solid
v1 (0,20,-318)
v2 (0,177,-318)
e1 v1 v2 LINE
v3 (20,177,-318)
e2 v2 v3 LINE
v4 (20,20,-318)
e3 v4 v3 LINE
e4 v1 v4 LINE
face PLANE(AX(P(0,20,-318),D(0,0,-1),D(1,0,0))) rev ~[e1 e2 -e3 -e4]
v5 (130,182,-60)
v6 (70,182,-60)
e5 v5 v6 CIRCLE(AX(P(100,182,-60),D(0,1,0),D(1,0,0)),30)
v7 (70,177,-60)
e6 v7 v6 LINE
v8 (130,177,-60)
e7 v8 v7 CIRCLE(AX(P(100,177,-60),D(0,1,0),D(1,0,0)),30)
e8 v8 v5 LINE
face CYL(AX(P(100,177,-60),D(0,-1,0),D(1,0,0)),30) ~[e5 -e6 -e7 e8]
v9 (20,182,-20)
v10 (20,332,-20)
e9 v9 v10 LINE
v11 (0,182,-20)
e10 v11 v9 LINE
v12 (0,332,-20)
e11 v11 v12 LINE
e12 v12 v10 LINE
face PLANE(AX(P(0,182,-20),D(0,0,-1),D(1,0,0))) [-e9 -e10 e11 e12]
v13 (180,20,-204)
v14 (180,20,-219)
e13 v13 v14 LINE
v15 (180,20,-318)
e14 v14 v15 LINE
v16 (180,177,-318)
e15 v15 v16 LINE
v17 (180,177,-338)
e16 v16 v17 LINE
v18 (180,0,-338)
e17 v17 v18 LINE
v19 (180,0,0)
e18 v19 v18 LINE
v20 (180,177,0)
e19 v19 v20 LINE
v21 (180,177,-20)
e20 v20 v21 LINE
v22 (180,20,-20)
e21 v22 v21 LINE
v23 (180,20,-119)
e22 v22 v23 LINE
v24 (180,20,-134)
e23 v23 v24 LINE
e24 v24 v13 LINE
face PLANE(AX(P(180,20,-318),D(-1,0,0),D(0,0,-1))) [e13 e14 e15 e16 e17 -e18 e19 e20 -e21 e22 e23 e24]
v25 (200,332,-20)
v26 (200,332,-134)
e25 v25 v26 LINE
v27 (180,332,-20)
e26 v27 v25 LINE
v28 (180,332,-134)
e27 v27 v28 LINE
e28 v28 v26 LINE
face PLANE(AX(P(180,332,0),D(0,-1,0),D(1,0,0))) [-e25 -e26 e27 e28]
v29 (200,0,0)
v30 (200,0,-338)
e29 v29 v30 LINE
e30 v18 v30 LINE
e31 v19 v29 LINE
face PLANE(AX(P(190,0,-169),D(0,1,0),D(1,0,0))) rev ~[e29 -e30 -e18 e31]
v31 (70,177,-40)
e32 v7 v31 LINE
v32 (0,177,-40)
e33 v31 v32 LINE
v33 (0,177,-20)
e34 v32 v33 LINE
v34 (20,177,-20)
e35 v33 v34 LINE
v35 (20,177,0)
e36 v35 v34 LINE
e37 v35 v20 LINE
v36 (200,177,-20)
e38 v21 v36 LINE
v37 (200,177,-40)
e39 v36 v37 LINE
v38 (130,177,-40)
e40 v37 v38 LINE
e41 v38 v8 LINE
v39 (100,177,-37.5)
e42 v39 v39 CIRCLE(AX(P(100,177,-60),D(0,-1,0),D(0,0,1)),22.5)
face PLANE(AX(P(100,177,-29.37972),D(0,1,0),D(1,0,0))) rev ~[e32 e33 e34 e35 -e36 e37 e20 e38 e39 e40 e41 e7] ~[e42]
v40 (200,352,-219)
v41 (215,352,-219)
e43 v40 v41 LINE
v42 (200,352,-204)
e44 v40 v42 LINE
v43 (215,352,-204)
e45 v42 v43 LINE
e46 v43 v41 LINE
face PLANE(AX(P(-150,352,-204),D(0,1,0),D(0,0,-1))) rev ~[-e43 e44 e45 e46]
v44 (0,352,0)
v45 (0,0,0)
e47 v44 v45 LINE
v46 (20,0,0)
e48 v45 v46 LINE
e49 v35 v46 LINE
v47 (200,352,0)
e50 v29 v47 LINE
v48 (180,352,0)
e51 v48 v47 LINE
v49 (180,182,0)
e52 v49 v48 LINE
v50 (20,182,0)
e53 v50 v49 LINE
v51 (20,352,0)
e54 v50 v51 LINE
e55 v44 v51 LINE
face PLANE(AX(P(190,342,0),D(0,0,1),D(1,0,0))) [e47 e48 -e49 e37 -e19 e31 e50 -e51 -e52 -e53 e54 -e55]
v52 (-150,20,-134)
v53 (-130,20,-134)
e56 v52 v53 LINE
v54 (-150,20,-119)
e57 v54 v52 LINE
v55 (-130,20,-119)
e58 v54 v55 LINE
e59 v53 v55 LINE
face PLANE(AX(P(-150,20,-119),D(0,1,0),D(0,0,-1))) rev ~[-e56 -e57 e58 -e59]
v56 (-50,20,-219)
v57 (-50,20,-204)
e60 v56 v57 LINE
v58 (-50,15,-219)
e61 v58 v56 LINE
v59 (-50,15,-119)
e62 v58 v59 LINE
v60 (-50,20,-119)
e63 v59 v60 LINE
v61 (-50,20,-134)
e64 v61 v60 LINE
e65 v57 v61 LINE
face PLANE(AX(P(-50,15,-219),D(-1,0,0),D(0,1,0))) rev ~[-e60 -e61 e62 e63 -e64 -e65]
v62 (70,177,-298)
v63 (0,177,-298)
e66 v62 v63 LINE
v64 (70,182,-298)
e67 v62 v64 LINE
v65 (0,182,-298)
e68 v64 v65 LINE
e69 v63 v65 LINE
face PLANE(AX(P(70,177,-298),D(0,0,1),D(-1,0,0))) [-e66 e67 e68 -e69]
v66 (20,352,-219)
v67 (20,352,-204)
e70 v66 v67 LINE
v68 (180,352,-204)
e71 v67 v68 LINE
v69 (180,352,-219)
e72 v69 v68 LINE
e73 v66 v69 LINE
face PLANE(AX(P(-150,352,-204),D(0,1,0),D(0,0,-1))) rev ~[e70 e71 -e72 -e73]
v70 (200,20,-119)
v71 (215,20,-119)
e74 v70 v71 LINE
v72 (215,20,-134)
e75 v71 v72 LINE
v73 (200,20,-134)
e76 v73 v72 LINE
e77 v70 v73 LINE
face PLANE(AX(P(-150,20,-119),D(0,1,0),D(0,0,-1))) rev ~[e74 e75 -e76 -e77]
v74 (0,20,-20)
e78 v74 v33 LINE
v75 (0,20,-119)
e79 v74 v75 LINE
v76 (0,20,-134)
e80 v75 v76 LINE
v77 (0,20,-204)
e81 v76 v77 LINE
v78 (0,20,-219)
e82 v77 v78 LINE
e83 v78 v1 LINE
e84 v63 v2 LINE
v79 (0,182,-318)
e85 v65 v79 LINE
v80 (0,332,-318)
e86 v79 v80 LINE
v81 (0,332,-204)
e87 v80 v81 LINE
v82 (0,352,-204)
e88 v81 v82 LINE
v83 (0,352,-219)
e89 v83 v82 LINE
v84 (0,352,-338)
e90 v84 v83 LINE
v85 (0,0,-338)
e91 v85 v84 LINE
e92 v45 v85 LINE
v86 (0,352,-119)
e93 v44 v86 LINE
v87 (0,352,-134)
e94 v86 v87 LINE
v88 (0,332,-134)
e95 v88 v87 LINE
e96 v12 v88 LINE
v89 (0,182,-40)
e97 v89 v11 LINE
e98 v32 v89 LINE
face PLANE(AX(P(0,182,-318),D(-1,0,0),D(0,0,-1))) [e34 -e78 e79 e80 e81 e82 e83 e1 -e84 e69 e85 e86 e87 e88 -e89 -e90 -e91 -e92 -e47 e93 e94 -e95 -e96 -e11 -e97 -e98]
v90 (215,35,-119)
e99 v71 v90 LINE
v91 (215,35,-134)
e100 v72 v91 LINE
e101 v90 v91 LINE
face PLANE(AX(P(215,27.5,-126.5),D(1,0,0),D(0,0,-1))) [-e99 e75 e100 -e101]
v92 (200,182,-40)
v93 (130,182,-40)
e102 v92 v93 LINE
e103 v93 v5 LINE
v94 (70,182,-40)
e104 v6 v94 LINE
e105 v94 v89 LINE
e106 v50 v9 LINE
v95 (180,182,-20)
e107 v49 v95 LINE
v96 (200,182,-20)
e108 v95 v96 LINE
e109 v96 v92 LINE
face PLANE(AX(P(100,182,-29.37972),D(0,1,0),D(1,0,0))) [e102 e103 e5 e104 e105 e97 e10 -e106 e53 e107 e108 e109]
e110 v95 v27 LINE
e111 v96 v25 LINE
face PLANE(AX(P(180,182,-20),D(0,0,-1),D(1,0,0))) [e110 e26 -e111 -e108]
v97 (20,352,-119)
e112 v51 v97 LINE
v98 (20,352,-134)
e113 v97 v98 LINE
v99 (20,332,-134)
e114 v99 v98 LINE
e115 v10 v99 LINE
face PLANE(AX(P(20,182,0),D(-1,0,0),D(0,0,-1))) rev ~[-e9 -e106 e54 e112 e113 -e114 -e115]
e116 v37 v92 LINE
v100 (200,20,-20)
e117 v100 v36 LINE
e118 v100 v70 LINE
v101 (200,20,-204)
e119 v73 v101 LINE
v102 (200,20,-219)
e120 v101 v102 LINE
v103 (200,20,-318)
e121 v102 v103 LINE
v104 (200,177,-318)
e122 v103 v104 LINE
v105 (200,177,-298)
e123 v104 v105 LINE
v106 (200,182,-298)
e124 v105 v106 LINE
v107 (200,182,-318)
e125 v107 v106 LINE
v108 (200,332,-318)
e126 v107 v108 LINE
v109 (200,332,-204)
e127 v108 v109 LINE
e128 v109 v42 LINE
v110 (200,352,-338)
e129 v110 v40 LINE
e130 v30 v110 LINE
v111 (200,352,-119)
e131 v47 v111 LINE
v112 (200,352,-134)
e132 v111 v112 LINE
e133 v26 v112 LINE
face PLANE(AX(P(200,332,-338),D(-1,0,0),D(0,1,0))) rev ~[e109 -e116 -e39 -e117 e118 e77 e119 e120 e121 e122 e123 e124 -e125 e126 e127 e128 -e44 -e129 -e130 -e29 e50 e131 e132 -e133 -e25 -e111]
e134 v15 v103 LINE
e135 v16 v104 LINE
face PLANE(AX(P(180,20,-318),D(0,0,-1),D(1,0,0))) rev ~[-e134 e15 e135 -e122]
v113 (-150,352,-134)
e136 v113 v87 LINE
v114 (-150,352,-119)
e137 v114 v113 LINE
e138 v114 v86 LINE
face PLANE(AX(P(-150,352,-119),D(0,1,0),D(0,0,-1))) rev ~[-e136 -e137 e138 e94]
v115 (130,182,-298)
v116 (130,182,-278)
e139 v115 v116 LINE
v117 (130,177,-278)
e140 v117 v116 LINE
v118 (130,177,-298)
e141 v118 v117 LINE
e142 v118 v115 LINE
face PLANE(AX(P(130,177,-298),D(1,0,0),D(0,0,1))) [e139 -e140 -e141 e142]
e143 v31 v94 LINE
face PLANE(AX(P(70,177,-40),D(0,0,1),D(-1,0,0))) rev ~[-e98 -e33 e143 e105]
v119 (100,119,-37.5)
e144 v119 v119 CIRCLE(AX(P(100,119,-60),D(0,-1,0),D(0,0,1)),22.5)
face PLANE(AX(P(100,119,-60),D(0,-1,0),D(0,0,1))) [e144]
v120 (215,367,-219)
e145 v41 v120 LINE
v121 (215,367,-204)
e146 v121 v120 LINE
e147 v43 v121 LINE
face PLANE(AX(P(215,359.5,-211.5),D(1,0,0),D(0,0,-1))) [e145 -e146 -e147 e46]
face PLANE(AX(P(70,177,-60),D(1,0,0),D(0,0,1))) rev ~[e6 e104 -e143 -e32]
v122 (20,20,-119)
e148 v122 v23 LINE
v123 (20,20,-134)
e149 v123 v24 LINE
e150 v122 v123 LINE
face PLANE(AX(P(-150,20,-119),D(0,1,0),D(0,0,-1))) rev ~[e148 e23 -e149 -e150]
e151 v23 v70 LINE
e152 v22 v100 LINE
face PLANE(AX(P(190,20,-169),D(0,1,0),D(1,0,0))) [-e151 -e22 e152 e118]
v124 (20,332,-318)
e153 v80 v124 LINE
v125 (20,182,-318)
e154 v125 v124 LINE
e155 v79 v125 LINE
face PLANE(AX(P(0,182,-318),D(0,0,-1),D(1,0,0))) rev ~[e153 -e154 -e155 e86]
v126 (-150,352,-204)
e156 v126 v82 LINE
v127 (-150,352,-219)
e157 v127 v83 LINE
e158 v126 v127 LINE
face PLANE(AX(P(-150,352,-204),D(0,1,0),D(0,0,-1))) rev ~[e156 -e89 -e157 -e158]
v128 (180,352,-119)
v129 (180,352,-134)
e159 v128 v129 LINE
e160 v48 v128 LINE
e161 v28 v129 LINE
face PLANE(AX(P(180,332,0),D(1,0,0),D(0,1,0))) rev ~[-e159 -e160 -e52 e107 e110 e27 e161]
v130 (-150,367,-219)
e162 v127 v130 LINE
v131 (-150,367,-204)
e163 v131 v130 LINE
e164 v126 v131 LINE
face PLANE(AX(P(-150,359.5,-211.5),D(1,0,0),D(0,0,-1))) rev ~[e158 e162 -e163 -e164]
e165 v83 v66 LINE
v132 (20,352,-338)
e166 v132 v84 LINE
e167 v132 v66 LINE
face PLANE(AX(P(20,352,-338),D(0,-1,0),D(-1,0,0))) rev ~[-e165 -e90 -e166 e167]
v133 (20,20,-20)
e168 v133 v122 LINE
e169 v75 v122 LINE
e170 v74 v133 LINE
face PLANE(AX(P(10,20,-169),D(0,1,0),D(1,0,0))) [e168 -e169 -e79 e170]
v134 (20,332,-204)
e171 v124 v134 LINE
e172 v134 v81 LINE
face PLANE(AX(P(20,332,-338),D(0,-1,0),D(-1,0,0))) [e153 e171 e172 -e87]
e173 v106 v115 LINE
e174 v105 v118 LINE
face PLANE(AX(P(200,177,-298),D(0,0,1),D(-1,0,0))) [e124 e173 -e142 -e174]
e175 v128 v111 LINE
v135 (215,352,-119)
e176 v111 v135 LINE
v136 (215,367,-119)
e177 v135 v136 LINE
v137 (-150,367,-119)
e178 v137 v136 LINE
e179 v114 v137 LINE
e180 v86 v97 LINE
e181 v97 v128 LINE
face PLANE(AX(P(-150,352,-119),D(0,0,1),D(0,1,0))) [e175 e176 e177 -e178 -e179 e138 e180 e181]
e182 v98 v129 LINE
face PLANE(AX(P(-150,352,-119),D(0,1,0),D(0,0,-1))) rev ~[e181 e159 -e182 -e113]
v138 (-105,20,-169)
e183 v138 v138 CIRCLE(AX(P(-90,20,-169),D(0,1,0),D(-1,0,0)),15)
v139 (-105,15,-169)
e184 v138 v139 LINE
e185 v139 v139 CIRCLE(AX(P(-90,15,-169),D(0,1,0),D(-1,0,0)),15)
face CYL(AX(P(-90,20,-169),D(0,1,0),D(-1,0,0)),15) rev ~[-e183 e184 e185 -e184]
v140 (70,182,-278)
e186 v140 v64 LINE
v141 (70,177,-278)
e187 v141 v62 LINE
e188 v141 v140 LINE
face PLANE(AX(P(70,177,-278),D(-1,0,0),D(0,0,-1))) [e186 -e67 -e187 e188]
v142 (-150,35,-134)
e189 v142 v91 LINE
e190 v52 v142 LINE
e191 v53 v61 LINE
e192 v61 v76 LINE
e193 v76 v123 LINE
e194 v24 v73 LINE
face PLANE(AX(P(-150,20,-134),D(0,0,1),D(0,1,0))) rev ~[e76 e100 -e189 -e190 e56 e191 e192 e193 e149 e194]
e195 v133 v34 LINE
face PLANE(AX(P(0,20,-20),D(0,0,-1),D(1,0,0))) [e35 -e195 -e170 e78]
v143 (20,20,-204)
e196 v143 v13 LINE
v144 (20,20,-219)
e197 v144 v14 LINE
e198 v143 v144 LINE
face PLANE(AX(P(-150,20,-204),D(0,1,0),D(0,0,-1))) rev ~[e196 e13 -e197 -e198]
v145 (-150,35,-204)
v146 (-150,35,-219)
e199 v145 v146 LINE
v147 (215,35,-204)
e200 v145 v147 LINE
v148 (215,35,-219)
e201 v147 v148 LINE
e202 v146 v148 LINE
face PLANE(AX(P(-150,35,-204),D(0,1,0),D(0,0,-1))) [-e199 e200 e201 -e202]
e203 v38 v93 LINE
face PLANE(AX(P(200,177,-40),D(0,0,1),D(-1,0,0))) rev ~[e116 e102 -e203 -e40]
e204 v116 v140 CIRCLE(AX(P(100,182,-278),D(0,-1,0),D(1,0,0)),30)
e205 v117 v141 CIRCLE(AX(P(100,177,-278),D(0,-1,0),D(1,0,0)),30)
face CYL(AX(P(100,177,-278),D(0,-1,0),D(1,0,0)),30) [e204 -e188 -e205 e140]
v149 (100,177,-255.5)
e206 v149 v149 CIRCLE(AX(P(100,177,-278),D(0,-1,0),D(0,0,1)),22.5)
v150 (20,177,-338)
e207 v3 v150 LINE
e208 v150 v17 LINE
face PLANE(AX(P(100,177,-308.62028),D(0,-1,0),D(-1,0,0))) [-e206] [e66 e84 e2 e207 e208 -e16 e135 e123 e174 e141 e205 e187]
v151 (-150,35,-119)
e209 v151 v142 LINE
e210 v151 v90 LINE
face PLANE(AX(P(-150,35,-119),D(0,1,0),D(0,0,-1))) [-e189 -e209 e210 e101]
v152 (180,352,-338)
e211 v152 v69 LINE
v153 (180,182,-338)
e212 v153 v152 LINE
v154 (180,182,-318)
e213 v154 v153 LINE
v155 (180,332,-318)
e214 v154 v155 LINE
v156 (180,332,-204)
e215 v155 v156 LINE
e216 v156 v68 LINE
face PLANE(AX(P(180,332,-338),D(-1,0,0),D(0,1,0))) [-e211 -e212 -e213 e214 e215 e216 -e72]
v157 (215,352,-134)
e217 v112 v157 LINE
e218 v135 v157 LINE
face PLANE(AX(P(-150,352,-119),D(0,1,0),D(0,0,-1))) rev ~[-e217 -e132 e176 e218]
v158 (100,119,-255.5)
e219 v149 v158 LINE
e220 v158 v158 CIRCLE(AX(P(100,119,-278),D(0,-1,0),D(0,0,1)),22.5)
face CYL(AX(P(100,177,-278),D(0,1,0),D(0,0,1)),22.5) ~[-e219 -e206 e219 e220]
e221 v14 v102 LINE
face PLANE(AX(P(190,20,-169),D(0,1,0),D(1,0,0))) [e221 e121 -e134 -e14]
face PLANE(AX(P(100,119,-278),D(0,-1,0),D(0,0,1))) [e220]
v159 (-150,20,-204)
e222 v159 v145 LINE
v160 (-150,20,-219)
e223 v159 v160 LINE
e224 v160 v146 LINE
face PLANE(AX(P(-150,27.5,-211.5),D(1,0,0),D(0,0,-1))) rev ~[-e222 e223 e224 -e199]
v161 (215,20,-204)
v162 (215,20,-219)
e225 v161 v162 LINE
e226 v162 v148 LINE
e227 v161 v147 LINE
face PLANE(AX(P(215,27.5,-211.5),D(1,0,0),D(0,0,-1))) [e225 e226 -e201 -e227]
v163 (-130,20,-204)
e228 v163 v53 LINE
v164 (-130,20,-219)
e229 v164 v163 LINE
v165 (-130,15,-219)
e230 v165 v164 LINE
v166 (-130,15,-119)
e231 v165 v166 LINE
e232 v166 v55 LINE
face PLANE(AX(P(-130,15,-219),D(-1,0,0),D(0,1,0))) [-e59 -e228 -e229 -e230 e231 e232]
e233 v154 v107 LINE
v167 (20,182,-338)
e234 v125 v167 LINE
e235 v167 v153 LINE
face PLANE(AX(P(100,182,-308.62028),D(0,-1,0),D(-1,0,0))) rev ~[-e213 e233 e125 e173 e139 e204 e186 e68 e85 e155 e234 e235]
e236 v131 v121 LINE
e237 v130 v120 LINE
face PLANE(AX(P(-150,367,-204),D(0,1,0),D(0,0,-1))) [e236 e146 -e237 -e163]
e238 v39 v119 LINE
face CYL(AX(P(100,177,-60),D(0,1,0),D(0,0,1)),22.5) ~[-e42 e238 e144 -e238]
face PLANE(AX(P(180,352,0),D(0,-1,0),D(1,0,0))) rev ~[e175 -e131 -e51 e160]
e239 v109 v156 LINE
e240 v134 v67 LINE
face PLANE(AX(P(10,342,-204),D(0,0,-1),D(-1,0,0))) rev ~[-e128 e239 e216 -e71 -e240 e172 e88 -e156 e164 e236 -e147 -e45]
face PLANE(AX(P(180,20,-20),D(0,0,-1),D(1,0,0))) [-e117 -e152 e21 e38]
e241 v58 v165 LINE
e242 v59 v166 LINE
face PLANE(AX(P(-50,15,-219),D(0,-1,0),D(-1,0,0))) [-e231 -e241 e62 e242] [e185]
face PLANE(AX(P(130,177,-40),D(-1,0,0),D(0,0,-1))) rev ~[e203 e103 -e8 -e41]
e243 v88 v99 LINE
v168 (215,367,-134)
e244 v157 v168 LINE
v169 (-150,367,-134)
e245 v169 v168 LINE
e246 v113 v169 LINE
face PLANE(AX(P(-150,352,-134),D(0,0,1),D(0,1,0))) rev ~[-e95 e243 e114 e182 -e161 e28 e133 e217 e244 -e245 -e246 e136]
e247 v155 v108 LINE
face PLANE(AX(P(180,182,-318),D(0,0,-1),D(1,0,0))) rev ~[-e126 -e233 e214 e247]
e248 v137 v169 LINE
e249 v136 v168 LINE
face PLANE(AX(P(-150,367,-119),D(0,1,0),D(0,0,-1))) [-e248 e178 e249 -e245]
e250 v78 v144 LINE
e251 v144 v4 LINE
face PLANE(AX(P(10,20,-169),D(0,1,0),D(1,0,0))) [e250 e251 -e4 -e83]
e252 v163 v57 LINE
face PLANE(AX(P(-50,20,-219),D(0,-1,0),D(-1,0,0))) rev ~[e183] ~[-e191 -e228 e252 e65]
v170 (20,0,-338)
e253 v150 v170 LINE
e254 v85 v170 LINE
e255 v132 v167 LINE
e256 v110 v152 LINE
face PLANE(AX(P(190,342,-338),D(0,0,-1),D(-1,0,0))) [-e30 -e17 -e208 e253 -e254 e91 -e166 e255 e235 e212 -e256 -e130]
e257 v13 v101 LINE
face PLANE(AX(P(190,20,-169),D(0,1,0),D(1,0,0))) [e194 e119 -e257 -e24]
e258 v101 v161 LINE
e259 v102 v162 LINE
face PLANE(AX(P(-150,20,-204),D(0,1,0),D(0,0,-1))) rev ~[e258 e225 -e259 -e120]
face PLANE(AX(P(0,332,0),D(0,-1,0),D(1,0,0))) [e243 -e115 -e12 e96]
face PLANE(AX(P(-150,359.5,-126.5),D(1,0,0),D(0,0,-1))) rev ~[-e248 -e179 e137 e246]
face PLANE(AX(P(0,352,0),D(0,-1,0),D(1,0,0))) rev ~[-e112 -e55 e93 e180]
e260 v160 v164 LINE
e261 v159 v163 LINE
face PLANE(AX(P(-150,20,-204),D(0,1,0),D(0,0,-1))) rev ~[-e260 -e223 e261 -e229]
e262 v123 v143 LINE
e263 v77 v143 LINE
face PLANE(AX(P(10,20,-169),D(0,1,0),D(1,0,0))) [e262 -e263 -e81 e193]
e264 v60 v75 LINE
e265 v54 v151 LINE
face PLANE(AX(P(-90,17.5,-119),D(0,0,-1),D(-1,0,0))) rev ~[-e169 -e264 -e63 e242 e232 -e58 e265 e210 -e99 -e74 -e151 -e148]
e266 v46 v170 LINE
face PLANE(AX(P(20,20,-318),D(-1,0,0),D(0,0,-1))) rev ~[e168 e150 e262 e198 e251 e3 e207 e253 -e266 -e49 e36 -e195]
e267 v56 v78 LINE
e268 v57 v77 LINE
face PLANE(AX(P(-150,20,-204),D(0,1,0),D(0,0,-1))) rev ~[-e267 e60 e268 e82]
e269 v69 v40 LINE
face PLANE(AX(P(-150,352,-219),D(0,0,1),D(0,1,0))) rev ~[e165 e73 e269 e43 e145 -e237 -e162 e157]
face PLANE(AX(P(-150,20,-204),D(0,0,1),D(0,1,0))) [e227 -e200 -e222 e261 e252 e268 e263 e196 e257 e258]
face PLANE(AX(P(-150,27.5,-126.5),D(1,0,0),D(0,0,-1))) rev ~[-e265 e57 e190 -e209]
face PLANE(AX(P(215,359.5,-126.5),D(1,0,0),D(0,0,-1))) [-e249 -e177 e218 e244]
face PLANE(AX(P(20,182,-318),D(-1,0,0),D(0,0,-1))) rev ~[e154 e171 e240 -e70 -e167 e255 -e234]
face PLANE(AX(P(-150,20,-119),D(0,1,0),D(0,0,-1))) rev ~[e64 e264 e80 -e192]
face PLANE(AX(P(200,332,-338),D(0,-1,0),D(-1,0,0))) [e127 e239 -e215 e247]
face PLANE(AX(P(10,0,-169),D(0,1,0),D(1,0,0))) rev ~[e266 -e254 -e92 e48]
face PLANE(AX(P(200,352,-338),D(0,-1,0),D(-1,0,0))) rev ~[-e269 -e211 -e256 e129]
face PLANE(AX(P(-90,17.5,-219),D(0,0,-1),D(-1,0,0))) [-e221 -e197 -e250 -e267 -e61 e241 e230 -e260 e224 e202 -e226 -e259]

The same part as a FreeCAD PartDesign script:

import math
import FreeCAD as App
import Part
import Sketcher

V = App.Vector

doc = App.newDocument("Part")
params = doc.addObject("Spreadsheet::Sheet", "Params")
for row, (alias, value) in enumerate([
    ("sketch1_width", "20 mm"),
    ("sketch1_height", "338 mm"),
    ("pad1_length", "20 mm"),
    ("sketch2_width", "20 mm"),
    ("sketch2_height", "338 mm"),
    ("pad2_length", "20 mm"),
    ("sketch3_width", "20 mm"),
    ("pad3_length", "157 mm"),
    ("sketch4_radius", "30 mm"),
    ("sketch4_width", "200 mm"),
    ("sketch4_height", "40 mm"),
    ("sketch4_height2", "20 mm"),
    ("pad4_length", "5 mm"),
    ("sketch5_diameter", "45 mm"),
    ("pad5_length", "58 mm"),
    ("sketch6_width", "15 mm"),
    ("pad6_length", "15 mm"),
    ("pad6_length2", "350 mm"),
    ("sketch7_width", "20 mm"),
    ("pad7_length", "150 mm"),
    ("sketch8_width", "20 mm"),
    ("pad8_length", "134 mm"),
    ("sketch9_width", "20 mm"),
    ("pad9_length", "134 mm"),
    ("sketch10_width", "15 mm"),
    ("pad10_length", "15 mm"),
    ("pad10_length2", "350 mm"),
    ("sketch11_width", "80 mm"),
    ("sketch11_height", "5 mm"),
    ("pad11_length", "100 mm"),
    ("sketch12_diameter", "30 mm"),
    ("pocket1_length", "5 mm"),
], start=1):
    params.set(f"A{row}", alias)
    params.set(f"B{row}", "=" + value)
    params.setAlias(f"B{row}", alias)

body = doc.addObject("PartDesign::Body", "Body")

# Sketch on XZ plane
sketch1 = body.newObject("Sketcher::SketchObject", "Sketch")
sketch1.AttachmentSupport = (doc.getObject("XZ_Plane"), [""])
sketch1.MapMode = "FlatFace"
sketch1.addGeometry([
    Part.LineSegment(V(0, -338, 0), V(0, 0, 0)),
    Part.LineSegment(V(0, 0, 0), V(20, 0, 0)),
    Part.LineSegment(V(20, 0, 0), V(20, -338, 0)),
    Part.LineSegment(V(20, -338, 0), V(0, -338, 0)),
], False)
sketch1.addConstraint([
    Sketcher.Constraint("Coincident", 0, 2, 1, 1),
    Sketcher.Constraint("Coincident", 1, 2, 2, 1),
    Sketcher.Constraint("Coincident", 2, 2, 3, 1),
    Sketcher.Constraint("Coincident", 3, 2, 0, 1),
    Sketcher.Constraint("Vertical", 0),
    Sketcher.Constraint("Horizontal", 1),
    Sketcher.Constraint("Vertical", 2),
    Sketcher.Constraint("Horizontal", 3),
    Sketcher.Constraint("Coincident", 0, 2, -1, 1),
    Sketcher.Constraint("DistanceX", 1, 1, 1, 2, 20.0),
    Sketcher.Constraint("DistanceY", 0, 1, 0, 2, 338.0),
])
sketch1.setExpression("Constraints[9]", "Params.sketch1_width")
sketch1.setExpression("Constraints[10]", "Params.sketch1_height")
pad1 = body.newObject("PartDesign::Pad", "Pad")
pad1.Profile = sketch1
pad1.setExpression("Length", "Params.pad1_length")
pad1.Reversed = True
body2 = doc.addObject("PartDesign::Body", "Body001")

# Sketch on XZ plane
sketch2 = body2.newObject("Sketcher::SketchObject", "Sketch001")
sketch2.AttachmentSupport = (doc.getObject("XZ_Plane001"), [""])
sketch2.MapMode = "FlatFace"
sketch2.addGeometry([
    Part.LineSegment(V(180, -338, 0), V(180, 0, 0)),
    Part.LineSegment(V(180, 0, 0), V(200, 0, 0)),
    Part.LineSegment(V(200, 0, 0), V(200, -338, 0)),
    Part.LineSegment(V(200, -338, 0), V(180, -338, 0)),
], False)
sketch2.addConstraint([
    Sketcher.Constraint("Coincident", 0, 2, 1, 1),
    Sketcher.Constraint("Coincident", 1, 2, 2, 1),
    Sketcher.Constraint("Coincident", 2, 2, 3, 1),
    Sketcher.Constraint("Coincident", 3, 2, 0, 1),
    Sketcher.Constraint("Vertical", 0),
    Sketcher.Constraint("Horizontal", 1),
    Sketcher.Constraint("Vertical", 2),
    Sketcher.Constraint("Horizontal", 3),
    Sketcher.Constraint("PointOnObject", 0, 2, -1),
    Sketcher.Constraint("DistanceX", 1, 1, 1, 2, 20.0),
    Sketcher.Constraint("DistanceY", 0, 1, 0, 2, 338.0),
    Sketcher.Constraint("DistanceX", -1, 1, 0, 2, 180.0),
])
sketch2.setExpression("Constraints[9]", "Params.sketch2_width")
sketch2.setExpression("Constraints[10]", "Params.sketch2_height")
pad2 = body2.newObject("PartDesign::Pad", "Pad001")
pad2.Profile = sketch2
pad2.setExpression("Length", "Params.pad2_length")
pad2.Reversed = True
body.AllowCompound = True
doc.recompute()

boolean = body.newObject("PartDesign::Boolean", "Boolean")
boolean.Type = "Fuse"
boolean.addObjects([body2])

# Sketch on XZ plane
sketch3 = body.newObject("Sketcher::SketchObject", "Sketch002")
sketch3.AttachmentSupport = (doc.getObject("XZ_Plane"), [""])
sketch3.MapMode = "FlatFace"
sketch3.AttachmentOffset = App.Placement(V(0, 0, -20), App.Rotation())
sketch3.addGeometry([
    Part.LineSegment(V(0, -338, 0), V(0, -318, 0)),  # 0
    Part.LineSegment(V(0, -318, 0), V(20, -318, 0)),  # 1
    Part.LineSegment(V(20, -318, 0), V(20, -338, 0)),  # 2
    Part.LineSegment(V(20, -338, 0), V(0, -338, 0)),  # 3
    Part.LineSegment(V(180, -338, 0), V(180, -318, 0)),  # 4
    Part.LineSegment(V(180, -318, 0), V(200, -318, 0)),  # 5
    Part.LineSegment(V(200, -318, 0), V(200, -338, 0)),  # 6
    Part.LineSegment(V(200, -338, 0), V(180, -338, 0)),  # 7
    Part.LineSegment(V(180, -20, 0), V(180, 0, 0)),  # 8
    Part.LineSegment(V(180, 0, 0), V(200, 0, 0)),  # 9
    Part.LineSegment(V(200, 0, 0), V(200, -20, 0)),  # 10
    Part.LineSegment(V(200, -20, 0), V(180, -20, 0)),  # 11
    Part.LineSegment(V(0, -20, 0), V(0, 0, 0)),  # 12
    Part.LineSegment(V(0, 0, 0), V(20, 0, 0)),  # 13
    Part.LineSegment(V(20, 0, 0), V(20, -20, 0)),  # 14
    Part.LineSegment(V(20, -20, 0), V(0, -20, 0)),  # 15
], False)
sketch3.addConstraint([
    Sketcher.Constraint("Coincident", 0, 2, 1, 1),
    Sketcher.Constraint("Coincident", 1, 2, 2, 1),
    Sketcher.Constraint("Coincident", 2, 2, 3, 1),
    Sketcher.Constraint("Coincident", 3, 2, 0, 1),
    Sketcher.Constraint("Coincident", 4, 2, 5, 1),
    Sketcher.Constraint("Coincident", 5, 2, 6, 1),
    Sketcher.Constraint("Coincident", 6, 2, 7, 1),
    Sketcher.Constraint("Coincident", 7, 2, 4, 1),
    Sketcher.Constraint("Coincident", 8, 2, 9, 1),
    Sketcher.Constraint("Coincident", 9, 2, 10, 1),
    Sketcher.Constraint("Coincident", 10, 2, 11, 1),
    Sketcher.Constraint("Coincident", 11, 2, 8, 1),
    Sketcher.Constraint("Coincident", 12, 2, 13, 1),
    Sketcher.Constraint("Coincident", 13, 2, 14, 1),
    Sketcher.Constraint("Coincident", 14, 2, 15, 1),
    Sketcher.Constraint("Coincident", 15, 2, 12, 1),
    Sketcher.Constraint("Vertical", 0),
    Sketcher.Constraint("Horizontal", 1),
    Sketcher.Constraint("Vertical", 2),
    Sketcher.Constraint("Horizontal", 3),
    Sketcher.Constraint("Vertical", 4),
    Sketcher.Constraint("Horizontal", 5),
    Sketcher.Constraint("Vertical", 6),
    Sketcher.Constraint("Horizontal", 7),
    Sketcher.Constraint("Vertical", 8),
    Sketcher.Constraint("Horizontal", 9),
    Sketcher.Constraint("Vertical", 10),
    Sketcher.Constraint("Horizontal", 11),
    Sketcher.Constraint("Vertical", 12),
    Sketcher.Constraint("Horizontal", 13),
    Sketcher.Constraint("Vertical", 14),
    Sketcher.Constraint("Horizontal", 15),
    Sketcher.Constraint("Coincident", 12, 2, -1, 1),
    Sketcher.Constraint("PointOnObject", 0, 2, -2),
    Sketcher.Constraint("PointOnObject", 8, 2, -1),
    Sketcher.Constraint("Horizontal", 1, 2, 4, 2),
    Sketcher.Constraint("Horizontal", 3, 2, 6, 2),
    Sketcher.Constraint("Horizontal", 11, 2, 14, 2),
    Sketcher.Constraint("Vertical", 7, 2, 8, 2),
    Sketcher.Constraint("Vertical", 6, 2, 9, 2),
    Sketcher.Constraint("Vertical", 2, 2, 13, 2),
    Sketcher.Constraint("Equal", 3, 5),
    Sketcher.Constraint("Equal", 15, 0),
    Sketcher.Constraint("Equal", 6, 8),
    Sketcher.Constraint("DistanceX", 1, 1, 1, 2, 20.0),
    Sketcher.Constraint("DistanceY", 0, 2, -1, 1, 318.0),
    Sketcher.Constraint("DistanceX", -1, 1, 4, 2, 180.0),
])
sketch3.setExpression("Constraints[44]", "Params.sketch3_width")
pad3 = body.newObject("PartDesign::Pad", "Pad002")
pad3.Profile = sketch3
pad3.setExpression("Length", "Params.pad3_length")
pad3.Reversed = True

# Sketch on XZ plane
sketch4 = body.newObject("Sketcher::SketchObject", "Sketch003")
sketch4.AttachmentSupport = (doc.getObject("XZ_Plane"), [""])
sketch4.MapMode = "FlatFace"
sketch4.AttachmentOffset = App.Placement(V(0, 0, -177), App.Rotation())
sketch4.addGeometry([
    Part.LineSegment(V(0, 0, 0), V(200, 0, 0)),  # 0
    Part.LineSegment(V(200, 0, 0), V(200, -40, 0)),  # 1
    Part.LineSegment(V(200, -40, 0), V(130, -40, 0)),  # 2
    Part.LineSegment(V(130, -40, 0), V(130, -60, 0)),  # 3
    Part.ArcOfCircle(Part.Circle(V(100, -60, 0), V(0, 0, 1), 30), math.radians(180), math.radians(360)),  # 4
    Part.LineSegment(V(70, -60, 0), V(70, -40, 0)),  # 5
    Part.LineSegment(V(70, -40, 0), V(0, -40, 0)),  # 6
    Part.LineSegment(V(0, -40, 0), V(0, 0, 0)),  # 7
    Part.LineSegment(V(200, -338, 0), V(0, -338, 0)),  # 8
    Part.LineSegment(V(0, -338, 0), V(0, -298, 0)),  # 9
    Part.LineSegment(V(0, -298, 0), V(70, -298, 0)),  # 10
    Part.LineSegment(V(70, -298, 0), V(70, -278, 0)),  # 11
    Part.ArcOfCircle(Part.Circle(V(100, -278, 0), V(0, 0, 1), 30), math.radians(0), math.radians(180)),  # 12
    Part.LineSegment(V(130, -278, 0), V(130, -298, 0)),  # 13
    Part.LineSegment(V(130, -298, 0), V(200, -298, 0)),  # 14
    Part.LineSegment(V(200, -298, 0), V(200, -338, 0)),  # 15
], False)
sketch4.addConstraint([
    Sketcher.Constraint("Coincident", 0, 2, 1, 1),
    Sketcher.Constraint("Coincident", 1, 2, 2, 1),
    Sketcher.Constraint("Coincident", 2, 2, 3, 1),
    Sketcher.Constraint("Tangent", 3, 2, 4, 2),
    Sketcher.Constraint("Tangent", 4, 1, 5, 1),
    Sketcher.Constraint("Coincident", 5, 2, 6, 1),
    Sketcher.Constraint("Coincident", 6, 2, 7, 1),
    Sketcher.Constraint("Coincident", 7, 2, 0, 1),
    Sketcher.Constraint("Coincident", 8, 2, 9, 1),
    Sketcher.Constraint("Coincident", 9, 2, 10, 1),
    Sketcher.Constraint("Coincident", 10, 2, 11, 1),
    Sketcher.Constraint("Tangent", 11, 2, 12, 2),
    Sketcher.Constraint("Tangent", 12, 1, 13, 1),
    Sketcher.Constraint("Coincident", 13, 2, 14, 1),
    Sketcher.Constraint("Coincident", 14, 2, 15, 1),
    Sketcher.Constraint("Coincident", 15, 2, 8, 1),
    Sketcher.Constraint("Horizontal", 0),
    Sketcher.Constraint("Vertical", 1),
    Sketcher.Constraint("Horizontal", 2),
    Sketcher.Constraint("Vertical", 3),
    Sketcher.Constraint("Vertical", 5),
    Sketcher.Constraint("Horizontal", 6),
    Sketcher.Constraint("Vertical", 7),
    Sketcher.Constraint("Horizontal", 8),
    Sketcher.Constraint("Vertical", 9),
    Sketcher.Constraint("Horizontal", 10),
    Sketcher.Constraint("Vertical", 11),
    Sketcher.Constraint("Vertical", 13),
    Sketcher.Constraint("Horizontal", 14),
    Sketcher.Constraint("Vertical", 15),
    Sketcher.Constraint("Coincident", 7, 2, -1, 1),
    Sketcher.Constraint("Equal", 4, 12),
    Sketcher.Constraint("PointOnObject", 8, 2, -2),
    Sketcher.Constraint("Horizontal", 2, 2, 5, 2),
    Sketcher.Constraint("Horizontal", 10, 2, 13, 2),
    Sketcher.Constraint("Vertical", 4, 3, 12, 3),
    Sketcher.Constraint("Vertical", 1, 2, 14, 2),
    Sketcher.Constraint("Equal", 2, 6),
    Sketcher.Constraint("Equal", 7, 9),
    Sketcher.Constraint("Equal", 5, 11),
    Sketcher.Constraint("Radius", 4, 30.0),
    Sketcher.Constraint("DistanceX", 0, 1, 0, 2, 200.0),
    Sketcher.Constraint("DistanceY", 1, 2, 1, 1, 40.0),
    Sketcher.Constraint("DistanceY", 3, 2, 3, 1, 20.0),
    Sketcher.Constraint("DistanceY", 12, 3, -1, 1, 278.0),
])
sketch4.setExpression("Constraints[40]", "Params.sketch4_radius")
sketch4.setExpression("Constraints[41]", "Params.sketch4_width")
sketch4.setExpression("Constraints[42]", "Params.sketch4_height")
sketch4.setExpression("Constraints[43]", "Params.sketch4_height2")
pad4 = body.newObject("PartDesign::Pad", "Pad003")
pad4.Profile = sketch4
pad4.setExpression("Length", "Params.pad4_length")
pad4.Reversed = True

# Sketch on XZ plane
sketch5 = body.newObject("Sketcher::SketchObject", "Sketch004")
sketch5.AttachmentSupport = (doc.getObject("XZ_Plane"), [""])
sketch5.MapMode = "FlatFace"
sketch5.AttachmentOffset = App.Placement(V(0, 0, -177), App.Rotation())
sketch5.addGeometry([
    Part.Circle(V(100, -60, 0), V(0, 0, 1), 22),
    Part.Circle(V(100, -278, 0), V(0, 0, 1), 22),
], False)
sketch5.addConstraint([
    Sketcher.Constraint("Equal", 0, 1),
    Sketcher.Constraint("Vertical", 0, 3, 1, 3),
    Sketcher.Constraint("Diameter", 0, 45.0),
    Sketcher.Constraint("DistanceX", -1, 1, 0, 3, 100.0),
    Sketcher.Constraint("DistanceY", 0, 3, -1, 1, 60.0),
    Sketcher.Constraint("DistanceY", 1, 3, -1, 1, 278.0),
])
sketch5.setExpression("Constraints[2]", "Params.sketch5_diameter")
pad5 = body.newObject("PartDesign::Pad", "Pad004")
pad5.Profile = sketch5
pad5.setExpression("Length", "Params.pad5_length")

# Sketch on YZ plane
sketch6 = body.newObject("Sketcher::SketchObject", "Sketch005")
sketch6.AttachmentSupport = (doc.getObject("YZ_Plane"), [""])
sketch6.MapMode = "FlatFace"
sketch6.AttachmentOffset = App.Placement(V(0, 0, 200), App.Rotation())
sketch6.addGeometry([
    Part.LineSegment(V(35, -119, 0), V(20, -119, 0)),  # 0
    Part.LineSegment(V(20, -119, 0), V(20, -134, 0)),  # 1
    Part.LineSegment(V(20, -134, 0), V(35, -134, 0)),  # 2
    Part.LineSegment(V(35, -134, 0), V(35, -119, 0)),  # 3
    Part.LineSegment(V(35, -204, 0), V(20, -204, 0)),  # 4
    Part.LineSegment(V(20, -204, 0), V(20, -219, 0)),  # 5
    Part.LineSegment(V(20, -219, 0), V(35, -219, 0)),  # 6
    Part.LineSegment(V(35, -219, 0), V(35, -204, 0)),  # 7
], False)
sketch6.addConstraint([
    Sketcher.Constraint("Coincident", 0, 2, 1, 1),
    Sketcher.Constraint("Coincident", 1, 2, 2, 1),
    Sketcher.Constraint("Coincident", 2, 2, 3, 1),
    Sketcher.Constraint("Coincident", 3, 2, 0, 1),
    Sketcher.Constraint("Coincident", 4, 2, 5, 1),
    Sketcher.Constraint("Coincident", 5, 2, 6, 1),
    Sketcher.Constraint("Coincident", 6, 2, 7, 1),
    Sketcher.Constraint("Coincident", 7, 2, 4, 1),
    Sketcher.Constraint("Horizontal", 0),
    Sketcher.Constraint("Vertical", 1),
    Sketcher.Constraint("Horizontal", 2),
    Sketcher.Constraint("Vertical", 3),
    Sketcher.Constraint("Horizontal", 4),
    Sketcher.Constraint("Vertical", 5),
    Sketcher.Constraint("Horizontal", 6),
    Sketcher.Constraint("Vertical", 7),
    Sketcher.Constraint("Vertical", 1, 2, 4, 2),
    Sketcher.Constraint("Vertical", 3, 2, 6, 2),
    Sketcher.Constraint("Equal", 6, 1),
    Sketcher.Constraint("Equal", 3, 5),
    Sketcher.Constraint("DistanceX", 0, 2, 0, 1, 15.0),
    Sketcher.Constraint("DistanceX", -1, 1, 0, 2, 20.0),
    Sketcher.Constraint("DistanceY", 0, 2, -1, 1, 119.0),
    Sketcher.Constraint("DistanceY", 4, 2, -1, 1, 204.0),
])
sketch6.setExpression("Constraints[20]", "Params.sketch6_width")
pad6 = body.newObject("PartDesign::Pad", "Pad005")
pad6.Profile = sketch6
pad6.Type = "TwoLengths"
pad6.setExpression("Length", "Params.pad6_length")
pad6.setExpression("Length2", "Params.pad6_length2")

# Sketch on XZ plane
sketch7 = body.newObject("Sketcher::SketchObject", "Sketch006")
sketch7.AttachmentSupport = (doc.getObject("XZ_Plane"), [""])
sketch7.MapMode = "FlatFace"
sketch7.AttachmentOffset = App.Placement(V(0, 0, -182), App.Rotation())
sketch7.addGeometry([
    Part.LineSegment(V(0, -338, 0), V(0, -318, 0)),  # 0
    Part.LineSegment(V(0, -318, 0), V(20, -318, 0)),  # 1
    Part.LineSegment(V(20, -318, 0), V(20, -338, 0)),  # 2
    Part.LineSegment(V(20, -338, 0), V(0, -338, 0)),  # 3
    Part.LineSegment(V(180, -338, 0), V(180, -318, 0)),  # 4
    Part.LineSegment(V(180, -318, 0), V(200, -318, 0)),  # 5
    Part.LineSegment(V(200, -318, 0), V(200, -338, 0)),  # 6
    Part.LineSegment(V(200, -338, 0), V(180, -338, 0)),  # 7
    Part.LineSegment(V(0, -20, 0), V(0, 0, 0)),  # 8
    Part.LineSegment(V(0, 0, 0), V(20, 0, 0)),  # 9
    Part.LineSegment(V(20, 0, 0), V(20, -20, 0)),  # 10
    Part.LineSegment(V(20, -20, 0), V(0, -20, 0)),  # 11
    Part.LineSegment(V(180, -20, 0), V(180, 0, 0)),  # 12
    Part.LineSegment(V(180, 0, 0), V(200, 0, 0)),  # 13
    Part.LineSegment(V(200, 0, 0), V(200, -20, 0)),  # 14
    Part.LineSegment(V(200, -20, 0), V(180, -20, 0)),  # 15
], False)
sketch7.addConstraint([
    Sketcher.Constraint("Coincident", 0, 2, 1, 1),
    Sketcher.Constraint("Coincident", 1, 2, 2, 1),
    Sketcher.Constraint("Coincident", 2, 2, 3, 1),
    Sketcher.Constraint("Coincident", 3, 2, 0, 1),
    Sketcher.Constraint("Coincident", 4, 2, 5, 1),
    Sketcher.Constraint("Coincident", 5, 2, 6, 1),
    Sketcher.Constraint("Coincident", 6, 2, 7, 1),
    Sketcher.Constraint("Coincident", 7, 2, 4, 1),
    Sketcher.Constraint("Coincident", 8, 2, 9, 1),
    Sketcher.Constraint("Coincident", 9, 2, 10, 1),
    Sketcher.Constraint("Coincident", 10, 2, 11, 1),
    Sketcher.Constraint("Coincident", 11, 2, 8, 1),
    Sketcher.Constraint("Coincident", 12, 2, 13, 1),
    Sketcher.Constraint("Coincident", 13, 2, 14, 1),
    Sketcher.Constraint("Coincident", 14, 2, 15, 1),
    Sketcher.Constraint("Coincident", 15, 2, 12, 1),
    Sketcher.Constraint("Vertical", 0),
    Sketcher.Constraint("Horizontal", 1),
    Sketcher.Constraint("Vertical", 2),
    Sketcher.Constraint("Horizontal", 3),
    Sketcher.Constraint("Vertical", 4),
    Sketcher.Constraint("Horizontal", 5),
    Sketcher.Constraint("Vertical", 6),
    Sketcher.Constraint("Horizontal", 7),
    Sketcher.Constraint("Vertical", 8),
    Sketcher.Constraint("Horizontal", 9),
    Sketcher.Constraint("Vertical", 10),
    Sketcher.Constraint("Horizontal", 11),
    Sketcher.Constraint("Vertical", 12),
    Sketcher.Constraint("Horizontal", 13),
    Sketcher.Constraint("Vertical", 14),
    Sketcher.Constraint("Horizontal", 15),
    Sketcher.Constraint("Coincident", 8, 2, -1, 1),
    Sketcher.Constraint("PointOnObject", 0, 2, -2),
    Sketcher.Constraint("PointOnObject", 12, 2, -1),
    Sketcher.Constraint("Horizontal", 1, 2, 4, 2),
    Sketcher.Constraint("Horizontal", 3, 2, 6, 2),
    Sketcher.Constraint("Horizontal", 11, 2, 14, 2),
    Sketcher.Constraint("Vertical", 2, 2, 9, 2),
    Sketcher.Constraint("Vertical", 7, 2, 12, 2),
    Sketcher.Constraint("Vertical", 6, 2, 13, 2),
    Sketcher.Constraint("Equal", 3, 5),
    Sketcher.Constraint("Equal", 15, 0),
    Sketcher.Constraint("Equal", 6, 8),
    Sketcher.Constraint("DistanceX", 1, 1, 1, 2, 20.0),
    Sketcher.Constraint("DistanceY", 0, 2, -1, 1, 318.0),
    Sketcher.Constraint("DistanceX", -1, 1, 4, 2, 180.0),
])
sketch7.setExpression("Constraints[44]", "Params.sketch7_width")
pad7 = body.newObject("PartDesign::Pad", "Pad006")
pad7.Profile = sketch7
pad7.setExpression("Length", "Params.pad7_length")
pad7.Reversed = True

# Sketch on XY plane
sketch8 = body.newObject("Sketcher::SketchObject", "Sketch007")
sketch8.AttachmentSupport = (doc.getObject("XY_Plane"), [""])
sketch8.MapMode = "FlatFace"
sketch8.addGeometry([
    Part.LineSegment(V(180, 352, 0), V(180, 332, 0)),  # 0
    Part.LineSegment(V(180, 332, 0), V(200, 332, 0)),  # 1
    Part.LineSegment(V(200, 332, 0), V(200, 352, 0)),  # 2
    Part.LineSegment(V(200, 352, 0), V(180, 352, 0)),  # 3
    Part.LineSegment(V(0, 352, 0), V(0, 332, 0)),  # 4
    Part.LineSegment(V(0, 332, 0), V(20, 332, 0)),  # 5
    Part.LineSegment(V(20, 332, 0), V(20, 352, 0)),  # 6
    Part.LineSegment(V(20, 352, 0), V(0, 352, 0)),  # 7
], False)
sketch8.addConstraint([
    Sketcher.Constraint("Coincident", 0, 2, 1, 1),
    Sketcher.Constraint("Coincident", 1, 2, 2, 1),
    Sketcher.Constraint("Coincident", 2, 2, 3, 1),
    Sketcher.Constraint("Coincident", 3, 2, 0, 1),
    Sketcher.Constraint("Coincident", 4, 2, 5, 1),
    Sketcher.Constraint("Coincident", 5, 2, 6, 1),
    Sketcher.Constraint("Coincident", 6, 2, 7, 1),
    Sketcher.Constraint("Coincident", 7, 2, 4, 1),
    Sketcher.Constraint("Vertical", 0),
    Sketcher.Constraint("Horizontal", 1),
    Sketcher.Constraint("Vertical", 2),
    Sketcher.Constraint("Horizontal", 3),
    Sketcher.Constraint("Vertical", 4),
    Sketcher.Constraint("Horizontal", 5),
    Sketcher.Constraint("Vertical", 6),
    Sketcher.Constraint("Horizontal", 7),
    Sketcher.Constraint("PointOnObject", 4, 2, -2),
    Sketcher.Constraint("Horizontal", 1, 2, 4, 2),
    Sketcher.Constraint("Horizontal", 3, 2, 6, 2),
    Sketcher.Constraint("Equal", 3, 5),
    Sketcher.Constraint("Equal", 7, 0),
    Sketcher.Constraint("DistanceX", 1, 1, 1, 2, 20.0),
    Sketcher.Constraint("DistanceX", -1, 1, 0, 2, 180.0),
    Sketcher.Constraint("DistanceY", -1, 1, 0, 2, 332.0),
])
sketch8.setExpression("Constraints[21]", "Params.sketch8_width")
pad8 = body.newObject("PartDesign::Pad", "Pad007")
pad8.Profile = sketch8
pad8.setExpression("Length", "Params.pad8_length")
pad8.Reversed = True

# Sketch on XY plane
sketch9 = body.newObject("Sketcher::SketchObject", "Sketch008")
sketch9.AttachmentSupport = (doc.getObject("XY_Plane"), [""])
sketch9.MapMode = "FlatFace"
sketch9.AttachmentOffset = App.Placement(V(0, 0, -338), App.Rotation())
sketch9.addGeometry([
    Part.LineSegment(V(200, 352, 0), V(200, 332, 0)),  # 0
    Part.LineSegment(V(200, 332, 0), V(180, 332, 0)),  # 1
    Part.LineSegment(V(180, 332, 0), V(180, 352, 0)),  # 2
    Part.LineSegment(V(180, 352, 0), V(200, 352, 0)),  # 3
    Part.LineSegment(V(20, 352, 0), V(20, 332, 0)),  # 4
    Part.LineSegment(V(20, 332, 0), V(0, 332, 0)),  # 5
    Part.LineSegment(V(0, 332, 0), V(0, 352, 0)),  # 6
    Part.LineSegment(V(0, 352, 0), V(20, 352, 0)),  # 7
], False)
sketch9.addConstraint([
    Sketcher.Constraint("Coincident", 0, 2, 1, 1),
    Sketcher.Constraint("Coincident", 1, 2, 2, 1),
    Sketcher.Constraint("Coincident", 2, 2, 3, 1),
    Sketcher.Constraint("Coincident", 3, 2, 0, 1),
    Sketcher.Constraint("Coincident", 4, 2, 5, 1),
    Sketcher.Constraint("Coincident", 5, 2, 6, 1),
    Sketcher.Constraint("Coincident", 6, 2, 7, 1),
    Sketcher.Constraint("Coincident", 7, 2, 4, 1),
    Sketcher.Constraint("Vertical", 0),
    Sketcher.Constraint("Horizontal", 1),
    Sketcher.Constraint("Vertical", 2),
    Sketcher.Constraint("Horizontal", 3),
    Sketcher.Constraint("Vertical", 4),
    Sketcher.Constraint("Horizontal", 5),
    Sketcher.Constraint("Vertical", 6),
    Sketcher.Constraint("Horizontal", 7),
    Sketcher.Constraint("PointOnObject", 5, 2, -2),
    Sketcher.Constraint("Horizontal", 1, 2, 4, 2),
    Sketcher.Constraint("Horizontal", 3, 2, 6, 2),
    Sketcher.Constraint("Equal", 3, 5),
    Sketcher.Constraint("Equal", 7, 0),
    Sketcher.Constraint("DistanceX", 1, 2, 1, 1, 20.0),
    Sketcher.Constraint("DistanceX", -1, 1, 0, 2, 200.0),
    Sketcher.Constraint("DistanceY", -1, 1, 0, 2, 332.0),
])
sketch9.setExpression("Constraints[21]", "Params.sketch9_width")
pad9 = body.newObject("PartDesign::Pad", "Pad008")
pad9.Profile = sketch9
pad9.setExpression("Length", "Params.pad9_length")

# Sketch on YZ plane
sketch10 = body.newObject("Sketcher::SketchObject", "Sketch009")
sketch10.AttachmentSupport = (doc.getObject("YZ_Plane"), [""])
sketch10.MapMode = "FlatFace"
sketch10.AttachmentOffset = App.Placement(V(0, 0, 200), App.Rotation())
sketch10.addGeometry([
    Part.LineSegment(V(367, -119, 0), V(352, -119, 0)),  # 0
    Part.LineSegment(V(352, -119, 0), V(352, -134, 0)),  # 1
    Part.LineSegment(V(352, -134, 0), V(367, -134, 0)),  # 2
    Part.LineSegment(V(367, -134, 0), V(367, -119, 0)),  # 3
    Part.LineSegment(V(367, -204, 0), V(352, -204, 0)),  # 4
    Part.LineSegment(V(352, -204, 0), V(352, -219, 0)),  # 5
    Part.LineSegment(V(352, -219, 0), V(367, -219, 0)),  # 6
    Part.LineSegment(V(367, -219, 0), V(367, -204, 0)),  # 7
], False)
sketch10.addConstraint([
    Sketcher.Constraint("Coincident", 0, 2, 1, 1),
    Sketcher.Constraint("Coincident", 1, 2, 2, 1),
    Sketcher.Constraint("Coincident", 2, 2, 3, 1),
    Sketcher.Constraint("Coincident", 3, 2, 0, 1),
    Sketcher.Constraint("Coincident", 4, 2, 5, 1),
    Sketcher.Constraint("Coincident", 5, 2, 6, 1),
    Sketcher.Constraint("Coincident", 6, 2, 7, 1),
    Sketcher.Constraint("Coincident", 7, 2, 4, 1),
    Sketcher.Constraint("Horizontal", 0),
    Sketcher.Constraint("Vertical", 1),
    Sketcher.Constraint("Horizontal", 2),
    Sketcher.Constraint("Vertical", 3),
    Sketcher.Constraint("Horizontal", 4),
    Sketcher.Constraint("Vertical", 5),
    Sketcher.Constraint("Horizontal", 6),
    Sketcher.Constraint("Vertical", 7),
    Sketcher.Constraint("Vertical", 1, 2, 4, 2),
    Sketcher.Constraint("Vertical", 3, 2, 6, 2),
    Sketcher.Constraint("Equal", 6, 1),
    Sketcher.Constraint("Equal", 3, 5),
    Sketcher.Constraint("DistanceX", 0, 2, 0, 1, 15.0),
    Sketcher.Constraint("DistanceX", -1, 1, 0, 2, 352.0),
    Sketcher.Constraint("DistanceY", 0, 2, -1, 1, 119.0),
    Sketcher.Constraint("DistanceY", 4, 2, -1, 1, 204.0),
])
sketch10.setExpression("Constraints[20]", "Params.sketch10_width")
pad10 = body.newObject("PartDesign::Pad", "Pad009")
pad10.Profile = sketch10
pad10.Type = "TwoLengths"
pad10.setExpression("Length", "Params.pad10_length")
pad10.setExpression("Length2", "Params.pad10_length2")

# Sketch on XY plane
sketch11 = body.newObject("Sketcher::SketchObject", "Sketch010")
sketch11.AttachmentSupport = (doc.getObject("XY_Plane"), [""])
sketch11.MapMode = "FlatFace"
sketch11.AttachmentOffset = App.Placement(V(0, 0, -219), App.Rotation())
sketch11.addGeometry([
    Part.LineSegment(V(-50, 20, 0), V(-50, 15, 0)),
    Part.LineSegment(V(-50, 15, 0), V(-130, 15, 0)),
    Part.LineSegment(V(-130, 15, 0), V(-130, 20, 0)),
    Part.LineSegment(V(-130, 20, 0), V(-50, 20, 0)),
], False)
sketch11.addConstraint([
    Sketcher.Constraint("Coincident", 0, 2, 1, 1),
    Sketcher.Constraint("Coincident", 1, 2, 2, 1),
    Sketcher.Constraint("Coincident", 2, 2, 3, 1),
    Sketcher.Constraint("Coincident", 3, 2, 0, 1),
    Sketcher.Constraint("Vertical", 0),
    Sketcher.Constraint("Horizontal", 1),
    Sketcher.Constraint("Vertical", 2),
    Sketcher.Constraint("Horizontal", 3),
    Sketcher.Constraint("DistanceX", 1, 2, 1, 1, 80.0),
    Sketcher.Constraint("DistanceY", 0, 2, 0, 1, 5.0),
    Sketcher.Constraint("DistanceX", 0, 2, -1, 1, 50.0),
    Sketcher.Constraint("DistanceY", -1, 1, 0, 2, 15.0),
])
sketch11.setExpression("Constraints[8]", "Params.sketch11_width")
sketch11.setExpression("Constraints[9]", "Params.sketch11_height")
pad11 = body.newObject("PartDesign::Pad", "Pad010")
pad11.Profile = sketch11
pad11.setExpression("Length", "Params.pad11_length")

# Sketch on XZ plane
sketch12 = body.newObject("Sketcher::SketchObject", "Sketch011")
sketch12.AttachmentSupport = (doc.getObject("XZ_Plane"), [""])
sketch12.MapMode = "FlatFace"
sketch12.AttachmentOffset = App.Placement(V(0, 0, -20), App.Rotation())
sketch12.addGeometry(Part.Circle(V(-90, -169, 0), V(0, 0, 1), 15), False)
sketch12.addConstraint([
    Sketcher.Constraint("Diameter", 0, 30.0),
    Sketcher.Constraint("DistanceX", 0, 3, -1, 1, 90.0),
    Sketcher.Constraint("DistanceY", 0, 3, -1, 1, 169.0),
])
sketch12.setExpression("Constraints[0]", "Params.sketch12_diameter")
pocket1 = body.newObject("PartDesign::Pocket", "Pocket")
pocket1.Profile = sketch12
pocket1.setExpression("Length", "Params.pocket1_length")
pocket1.Reversed = True

doc.recompute()
